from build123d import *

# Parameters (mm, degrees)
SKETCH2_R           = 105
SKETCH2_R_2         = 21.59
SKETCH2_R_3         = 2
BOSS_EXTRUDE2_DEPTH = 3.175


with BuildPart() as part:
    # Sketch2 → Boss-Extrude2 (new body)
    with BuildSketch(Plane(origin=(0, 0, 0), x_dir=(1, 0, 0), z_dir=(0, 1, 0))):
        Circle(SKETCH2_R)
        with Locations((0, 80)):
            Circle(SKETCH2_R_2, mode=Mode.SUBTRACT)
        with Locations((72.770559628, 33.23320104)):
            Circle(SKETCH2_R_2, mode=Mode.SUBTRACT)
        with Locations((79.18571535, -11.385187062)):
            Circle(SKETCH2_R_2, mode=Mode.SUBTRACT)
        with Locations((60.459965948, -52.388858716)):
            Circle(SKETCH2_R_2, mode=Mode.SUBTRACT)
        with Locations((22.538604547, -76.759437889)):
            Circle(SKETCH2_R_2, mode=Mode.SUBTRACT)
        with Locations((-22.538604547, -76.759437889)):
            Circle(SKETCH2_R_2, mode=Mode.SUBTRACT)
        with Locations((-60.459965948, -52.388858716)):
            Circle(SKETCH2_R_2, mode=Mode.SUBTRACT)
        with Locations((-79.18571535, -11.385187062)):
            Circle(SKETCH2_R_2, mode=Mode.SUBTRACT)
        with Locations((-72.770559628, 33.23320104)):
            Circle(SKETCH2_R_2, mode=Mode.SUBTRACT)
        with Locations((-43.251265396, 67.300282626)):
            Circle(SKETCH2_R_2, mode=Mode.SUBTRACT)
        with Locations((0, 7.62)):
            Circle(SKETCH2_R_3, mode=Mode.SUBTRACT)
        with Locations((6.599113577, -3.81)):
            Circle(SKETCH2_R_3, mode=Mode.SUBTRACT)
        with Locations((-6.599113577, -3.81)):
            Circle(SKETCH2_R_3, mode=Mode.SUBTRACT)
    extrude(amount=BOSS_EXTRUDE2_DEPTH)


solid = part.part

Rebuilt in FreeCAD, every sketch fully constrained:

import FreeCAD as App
import Part
import Sketcher
from FreeCAD import Vector
Q = App.Units.Quantity

doc = App.newDocument("Part")
body = doc.addObject("PartDesign::Body", "Body")

# Sketch on XZ plane
sketch1 = body.newObject("Sketcher::SketchObject", "Sketch")
sketch1.AttachmentSupport = (doc.getObject("XZ_Plane"), [""])
sketch1.MapMode = "FlatFace"
sketch1.addGeometry([
    Part.Circle(Vector(0, 0, 0), Vector(0, 0, 1), 105),  # 0
    Part.Circle(Vector(-60.459966, 52.388859, 0), Vector(0, 0, 1), 21.59),  # 1
    Part.Circle(Vector(-22.538605, 76.759438, 0), Vector(0, 0, 1), 21.59),  # 2
    Part.Circle(Vector(-79.185715, 11.385187, 0), Vector(0, 0, 1), 21.59),  # 3
    Part.Circle(Vector(-6.599114, 3.81, 0), Vector(0, 0, 1), 2),  # 4
    Part.Circle(Vector(22.538605, 76.759438, 0), Vector(0, 0, 1), 21.59),  # 5
    Part.Circle(Vector(60.459966, 52.388859, 0), Vector(0, 0, 1), 21.59),  # 6
    Part.Circle(Vector(6.599114, 3.81, 0), Vector(0, 0, 1), 2),  # 7
    Part.Circle(Vector(79.185715, 11.385187, 0), Vector(0, 0, 1), 21.59),  # 8
    Part.Circle(Vector(-72.77056, -33.233201, 0), Vector(0, 0, 1), 21.59),  # 9
    Part.Circle(Vector(-43.251265, -67.300283, 0), Vector(0, 0, 1), 21.59),  # 10
    Part.Circle(Vector(0, -7.62, 0), Vector(0, 0, 1), 2),  # 11
    Part.Circle(Vector(72.77056, -33.233201, 0), Vector(0, 0, 1), 21.59),  # 12
    Part.Circle(Vector(0, -80, 0), Vector(0, 0, 1), 21.59),  # 13
], False)
sketch1.addConstraint([
    Sketcher.Constraint("Coincident", 0, 3, -1, 1),
    Sketcher.Constraint("Equal", 1, 2),
    Sketcher.Constraint("Equal", 2, 3),
    Sketcher.Constraint("Equal", 3, 5),
    Sketcher.Constraint("Equal", 5, 6),
    Sketcher.Constraint("Equal", 4, 7),
    Sketcher.Constraint("Equal", 6, 8),
    Sketcher.Constraint("Equal", 8, 9),
    Sketcher.Constraint("Equal", 9, 10),
    Sketcher.Constraint("Equal", 7, 11),
    Sketcher.Constraint("Equal", 10, 12),
    Sketcher.Constraint("Equal", 12, 13),
    Sketcher.Constraint("Symmetric", 2, 3, 5, 3, -2),
    Sketcher.Constraint("Symmetric", 1, 3, 6, 3, -2),
    Sketcher.Constraint("Symmetric", 4, 3, 7, 3, -2),
    Sketcher.Constraint("Symmetric", 3, 3, 8, 3, -2),
    Sketcher.Constraint("Symmetric", 9, 3, 12, 3, -2),
    Sketcher.Constraint("PointOnObject", 11, 3, -2),
    Sketcher.Constraint("PointOnObject", 13, 3, -2),
    Sketcher.Constraint("Diameter", 0, Q("210 mm")),
    Sketcher.Constraint("Diameter", 4, Q("4 mm")),
    Sketcher.Constraint("Diameter", 1, Q("43.18 mm")),
    Sketcher.Constraint("DistanceY", 13, 3, -1, 1, Q("80 mm")),
    Sketcher.Constraint("DistanceY", -1, 1, 4, 3, Q("3.81 mm")),
    Sketcher.Constraint("DistanceY", 11, 3, -1, 1, Q("7.62 mm")),
    Sketcher.Constraint("DistanceY", 9, 3, -1, 1, Q("33.233201 mm")),
    Sketcher.Constraint("DistanceX", 3, 3, 4, 3, Q("72.586602 mm")),
    Sketcher.Constraint("DistanceY", -1, 1, 1, 3, Q("52.388859 mm")),
    Sketcher.Constraint("DistanceX", 9, 3, -1, 1, Q("72.77056 mm")),
    Sketcher.Constraint("DistanceX", 1, 3, 2, 3, Q("37.921361 mm")),
    Sketcher.Constraint("DistanceY", 1, 3, 2, 3, Q("24.370579 mm")),
    Sketcher.Constraint("DistanceX", 3, 3, 1, 3, Q("18.725749 mm")),
    Sketcher.Constraint("DistanceY", 3, 3, 1, 3, Q("41.003672 mm")),
    Sketcher.Constraint("DistanceX", 2, 3, 5, 3, Q("45.077209 mm")),
    Sketcher.Constraint("DistanceY", 10, 3, 9, 3, Q("34.067082 mm")),
    Sketcher.Constraint("DistanceX", 10, 3, 4, 3, Q("36.652152 mm")),
])
pad1 = body.newObject("PartDesign::Pad", "Pad")
pad1.Profile = sketch1
pad1.Length = 3.175
pad1.Reversed = True

doc.recompute()
